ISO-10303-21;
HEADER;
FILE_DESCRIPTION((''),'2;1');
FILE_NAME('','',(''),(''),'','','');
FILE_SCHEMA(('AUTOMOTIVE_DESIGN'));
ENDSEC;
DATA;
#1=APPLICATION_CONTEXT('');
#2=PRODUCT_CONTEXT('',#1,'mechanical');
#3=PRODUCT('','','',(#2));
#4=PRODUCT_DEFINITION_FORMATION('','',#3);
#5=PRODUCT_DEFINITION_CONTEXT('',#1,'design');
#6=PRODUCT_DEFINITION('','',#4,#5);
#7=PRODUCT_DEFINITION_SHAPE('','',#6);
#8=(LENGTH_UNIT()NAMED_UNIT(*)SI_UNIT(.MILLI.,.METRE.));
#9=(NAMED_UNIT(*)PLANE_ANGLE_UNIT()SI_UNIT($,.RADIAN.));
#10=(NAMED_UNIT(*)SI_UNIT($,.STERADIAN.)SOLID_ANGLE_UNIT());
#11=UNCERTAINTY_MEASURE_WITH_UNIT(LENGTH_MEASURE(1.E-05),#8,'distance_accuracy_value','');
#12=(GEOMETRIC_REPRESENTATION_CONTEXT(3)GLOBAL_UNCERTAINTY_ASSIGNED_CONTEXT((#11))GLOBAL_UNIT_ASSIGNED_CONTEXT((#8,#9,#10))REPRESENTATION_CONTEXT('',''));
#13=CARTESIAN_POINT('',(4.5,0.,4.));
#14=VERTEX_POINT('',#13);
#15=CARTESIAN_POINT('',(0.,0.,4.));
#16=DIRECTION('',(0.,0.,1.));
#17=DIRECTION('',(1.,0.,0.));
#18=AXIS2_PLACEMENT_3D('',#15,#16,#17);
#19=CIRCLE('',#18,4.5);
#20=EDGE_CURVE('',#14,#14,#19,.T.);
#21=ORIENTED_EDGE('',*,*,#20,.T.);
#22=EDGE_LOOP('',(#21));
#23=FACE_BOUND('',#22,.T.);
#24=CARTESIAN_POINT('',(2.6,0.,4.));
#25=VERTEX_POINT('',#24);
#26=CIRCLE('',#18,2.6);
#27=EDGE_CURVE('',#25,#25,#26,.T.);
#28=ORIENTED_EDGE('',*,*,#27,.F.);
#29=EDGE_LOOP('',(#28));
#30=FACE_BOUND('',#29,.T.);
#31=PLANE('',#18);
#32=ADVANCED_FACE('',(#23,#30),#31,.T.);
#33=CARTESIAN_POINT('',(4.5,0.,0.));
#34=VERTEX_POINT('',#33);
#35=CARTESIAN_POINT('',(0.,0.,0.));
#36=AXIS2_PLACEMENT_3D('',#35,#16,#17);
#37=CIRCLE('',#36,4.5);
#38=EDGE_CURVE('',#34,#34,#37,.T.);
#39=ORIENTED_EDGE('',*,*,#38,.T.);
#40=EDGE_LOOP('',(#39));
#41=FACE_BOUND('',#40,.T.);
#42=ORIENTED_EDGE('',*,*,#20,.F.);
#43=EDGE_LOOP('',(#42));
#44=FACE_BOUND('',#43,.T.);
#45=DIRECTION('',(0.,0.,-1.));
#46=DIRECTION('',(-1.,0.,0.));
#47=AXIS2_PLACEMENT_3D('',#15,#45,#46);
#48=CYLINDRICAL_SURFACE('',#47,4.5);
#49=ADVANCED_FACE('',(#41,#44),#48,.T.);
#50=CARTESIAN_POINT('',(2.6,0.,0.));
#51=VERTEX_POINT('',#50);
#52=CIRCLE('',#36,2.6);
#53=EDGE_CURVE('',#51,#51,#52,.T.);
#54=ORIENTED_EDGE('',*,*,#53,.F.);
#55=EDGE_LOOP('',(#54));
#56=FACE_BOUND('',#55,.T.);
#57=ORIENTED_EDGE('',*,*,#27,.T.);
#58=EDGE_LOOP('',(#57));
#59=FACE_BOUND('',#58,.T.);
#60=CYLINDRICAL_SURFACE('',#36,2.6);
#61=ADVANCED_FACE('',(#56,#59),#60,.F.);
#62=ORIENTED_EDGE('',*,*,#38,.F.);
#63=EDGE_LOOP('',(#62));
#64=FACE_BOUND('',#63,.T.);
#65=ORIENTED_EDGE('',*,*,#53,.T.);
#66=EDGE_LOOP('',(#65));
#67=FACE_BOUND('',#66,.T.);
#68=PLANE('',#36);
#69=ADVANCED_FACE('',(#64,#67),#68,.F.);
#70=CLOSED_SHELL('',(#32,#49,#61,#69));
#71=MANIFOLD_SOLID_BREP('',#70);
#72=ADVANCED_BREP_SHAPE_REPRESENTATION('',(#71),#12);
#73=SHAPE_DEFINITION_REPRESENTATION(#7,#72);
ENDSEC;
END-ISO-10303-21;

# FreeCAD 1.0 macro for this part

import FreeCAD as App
import Part
import Sketcher
Q = App.Units.Quantity

doc = App.newDocument("Part")
body = doc.addObject("PartDesign::Body", "Body")

# Sketch on XY plane
sketch1 = body.newObject("Sketcher::SketchObject", "Sketch")
sketch1.AttachmentSupport = (doc.getObject("XY_Plane"), [""])
sketch1.MapMode = "FlatFace"
sketch1.addGeometry(Part.Circle(App.Vector(0, 0, 0), App.Vector(0, 0, 1), 4.5), False)
sketch1.addConstraint(Sketcher.Constraint("Coincident", 0, 3, -1, 1))
sketch1.addConstraint(Sketcher.Constraint("Diameter", 0, Q("9 mm")))
pad1 = body.newObject("PartDesign::Pad", "Pad")
pad1.Profile = sketch1
pad1.Length = 4

# Sketch on XY plane
sketch2 = body.newObject("Sketcher::SketchObject", "Sketch001")
sketch2.AttachmentSupport = (doc.getObject("XY_Plane"), [""])
sketch2.MapMode = "FlatFace"
sketch2.AttachmentOffset = App.Placement(App.Vector(0, 0, 4), App.Rotation())
sketch2.addGeometry(Part.Circle(App.Vector(0, 0, 0), App.Vector(0, 0, 1), 2.6), False)
sketch2.addConstraint(Sketcher.Constraint("Coincident", 0, 3, -1, 1))
sketch2.addConstraint(Sketcher.Constraint("Diameter", 0, Q("5.2 mm")))
pocket1 = body.newObject("PartDesign::Pocket", "Pocket")
pocket1.Profile = sketch2
pocket1.Type = "ThroughAll"

doc.recompute()
